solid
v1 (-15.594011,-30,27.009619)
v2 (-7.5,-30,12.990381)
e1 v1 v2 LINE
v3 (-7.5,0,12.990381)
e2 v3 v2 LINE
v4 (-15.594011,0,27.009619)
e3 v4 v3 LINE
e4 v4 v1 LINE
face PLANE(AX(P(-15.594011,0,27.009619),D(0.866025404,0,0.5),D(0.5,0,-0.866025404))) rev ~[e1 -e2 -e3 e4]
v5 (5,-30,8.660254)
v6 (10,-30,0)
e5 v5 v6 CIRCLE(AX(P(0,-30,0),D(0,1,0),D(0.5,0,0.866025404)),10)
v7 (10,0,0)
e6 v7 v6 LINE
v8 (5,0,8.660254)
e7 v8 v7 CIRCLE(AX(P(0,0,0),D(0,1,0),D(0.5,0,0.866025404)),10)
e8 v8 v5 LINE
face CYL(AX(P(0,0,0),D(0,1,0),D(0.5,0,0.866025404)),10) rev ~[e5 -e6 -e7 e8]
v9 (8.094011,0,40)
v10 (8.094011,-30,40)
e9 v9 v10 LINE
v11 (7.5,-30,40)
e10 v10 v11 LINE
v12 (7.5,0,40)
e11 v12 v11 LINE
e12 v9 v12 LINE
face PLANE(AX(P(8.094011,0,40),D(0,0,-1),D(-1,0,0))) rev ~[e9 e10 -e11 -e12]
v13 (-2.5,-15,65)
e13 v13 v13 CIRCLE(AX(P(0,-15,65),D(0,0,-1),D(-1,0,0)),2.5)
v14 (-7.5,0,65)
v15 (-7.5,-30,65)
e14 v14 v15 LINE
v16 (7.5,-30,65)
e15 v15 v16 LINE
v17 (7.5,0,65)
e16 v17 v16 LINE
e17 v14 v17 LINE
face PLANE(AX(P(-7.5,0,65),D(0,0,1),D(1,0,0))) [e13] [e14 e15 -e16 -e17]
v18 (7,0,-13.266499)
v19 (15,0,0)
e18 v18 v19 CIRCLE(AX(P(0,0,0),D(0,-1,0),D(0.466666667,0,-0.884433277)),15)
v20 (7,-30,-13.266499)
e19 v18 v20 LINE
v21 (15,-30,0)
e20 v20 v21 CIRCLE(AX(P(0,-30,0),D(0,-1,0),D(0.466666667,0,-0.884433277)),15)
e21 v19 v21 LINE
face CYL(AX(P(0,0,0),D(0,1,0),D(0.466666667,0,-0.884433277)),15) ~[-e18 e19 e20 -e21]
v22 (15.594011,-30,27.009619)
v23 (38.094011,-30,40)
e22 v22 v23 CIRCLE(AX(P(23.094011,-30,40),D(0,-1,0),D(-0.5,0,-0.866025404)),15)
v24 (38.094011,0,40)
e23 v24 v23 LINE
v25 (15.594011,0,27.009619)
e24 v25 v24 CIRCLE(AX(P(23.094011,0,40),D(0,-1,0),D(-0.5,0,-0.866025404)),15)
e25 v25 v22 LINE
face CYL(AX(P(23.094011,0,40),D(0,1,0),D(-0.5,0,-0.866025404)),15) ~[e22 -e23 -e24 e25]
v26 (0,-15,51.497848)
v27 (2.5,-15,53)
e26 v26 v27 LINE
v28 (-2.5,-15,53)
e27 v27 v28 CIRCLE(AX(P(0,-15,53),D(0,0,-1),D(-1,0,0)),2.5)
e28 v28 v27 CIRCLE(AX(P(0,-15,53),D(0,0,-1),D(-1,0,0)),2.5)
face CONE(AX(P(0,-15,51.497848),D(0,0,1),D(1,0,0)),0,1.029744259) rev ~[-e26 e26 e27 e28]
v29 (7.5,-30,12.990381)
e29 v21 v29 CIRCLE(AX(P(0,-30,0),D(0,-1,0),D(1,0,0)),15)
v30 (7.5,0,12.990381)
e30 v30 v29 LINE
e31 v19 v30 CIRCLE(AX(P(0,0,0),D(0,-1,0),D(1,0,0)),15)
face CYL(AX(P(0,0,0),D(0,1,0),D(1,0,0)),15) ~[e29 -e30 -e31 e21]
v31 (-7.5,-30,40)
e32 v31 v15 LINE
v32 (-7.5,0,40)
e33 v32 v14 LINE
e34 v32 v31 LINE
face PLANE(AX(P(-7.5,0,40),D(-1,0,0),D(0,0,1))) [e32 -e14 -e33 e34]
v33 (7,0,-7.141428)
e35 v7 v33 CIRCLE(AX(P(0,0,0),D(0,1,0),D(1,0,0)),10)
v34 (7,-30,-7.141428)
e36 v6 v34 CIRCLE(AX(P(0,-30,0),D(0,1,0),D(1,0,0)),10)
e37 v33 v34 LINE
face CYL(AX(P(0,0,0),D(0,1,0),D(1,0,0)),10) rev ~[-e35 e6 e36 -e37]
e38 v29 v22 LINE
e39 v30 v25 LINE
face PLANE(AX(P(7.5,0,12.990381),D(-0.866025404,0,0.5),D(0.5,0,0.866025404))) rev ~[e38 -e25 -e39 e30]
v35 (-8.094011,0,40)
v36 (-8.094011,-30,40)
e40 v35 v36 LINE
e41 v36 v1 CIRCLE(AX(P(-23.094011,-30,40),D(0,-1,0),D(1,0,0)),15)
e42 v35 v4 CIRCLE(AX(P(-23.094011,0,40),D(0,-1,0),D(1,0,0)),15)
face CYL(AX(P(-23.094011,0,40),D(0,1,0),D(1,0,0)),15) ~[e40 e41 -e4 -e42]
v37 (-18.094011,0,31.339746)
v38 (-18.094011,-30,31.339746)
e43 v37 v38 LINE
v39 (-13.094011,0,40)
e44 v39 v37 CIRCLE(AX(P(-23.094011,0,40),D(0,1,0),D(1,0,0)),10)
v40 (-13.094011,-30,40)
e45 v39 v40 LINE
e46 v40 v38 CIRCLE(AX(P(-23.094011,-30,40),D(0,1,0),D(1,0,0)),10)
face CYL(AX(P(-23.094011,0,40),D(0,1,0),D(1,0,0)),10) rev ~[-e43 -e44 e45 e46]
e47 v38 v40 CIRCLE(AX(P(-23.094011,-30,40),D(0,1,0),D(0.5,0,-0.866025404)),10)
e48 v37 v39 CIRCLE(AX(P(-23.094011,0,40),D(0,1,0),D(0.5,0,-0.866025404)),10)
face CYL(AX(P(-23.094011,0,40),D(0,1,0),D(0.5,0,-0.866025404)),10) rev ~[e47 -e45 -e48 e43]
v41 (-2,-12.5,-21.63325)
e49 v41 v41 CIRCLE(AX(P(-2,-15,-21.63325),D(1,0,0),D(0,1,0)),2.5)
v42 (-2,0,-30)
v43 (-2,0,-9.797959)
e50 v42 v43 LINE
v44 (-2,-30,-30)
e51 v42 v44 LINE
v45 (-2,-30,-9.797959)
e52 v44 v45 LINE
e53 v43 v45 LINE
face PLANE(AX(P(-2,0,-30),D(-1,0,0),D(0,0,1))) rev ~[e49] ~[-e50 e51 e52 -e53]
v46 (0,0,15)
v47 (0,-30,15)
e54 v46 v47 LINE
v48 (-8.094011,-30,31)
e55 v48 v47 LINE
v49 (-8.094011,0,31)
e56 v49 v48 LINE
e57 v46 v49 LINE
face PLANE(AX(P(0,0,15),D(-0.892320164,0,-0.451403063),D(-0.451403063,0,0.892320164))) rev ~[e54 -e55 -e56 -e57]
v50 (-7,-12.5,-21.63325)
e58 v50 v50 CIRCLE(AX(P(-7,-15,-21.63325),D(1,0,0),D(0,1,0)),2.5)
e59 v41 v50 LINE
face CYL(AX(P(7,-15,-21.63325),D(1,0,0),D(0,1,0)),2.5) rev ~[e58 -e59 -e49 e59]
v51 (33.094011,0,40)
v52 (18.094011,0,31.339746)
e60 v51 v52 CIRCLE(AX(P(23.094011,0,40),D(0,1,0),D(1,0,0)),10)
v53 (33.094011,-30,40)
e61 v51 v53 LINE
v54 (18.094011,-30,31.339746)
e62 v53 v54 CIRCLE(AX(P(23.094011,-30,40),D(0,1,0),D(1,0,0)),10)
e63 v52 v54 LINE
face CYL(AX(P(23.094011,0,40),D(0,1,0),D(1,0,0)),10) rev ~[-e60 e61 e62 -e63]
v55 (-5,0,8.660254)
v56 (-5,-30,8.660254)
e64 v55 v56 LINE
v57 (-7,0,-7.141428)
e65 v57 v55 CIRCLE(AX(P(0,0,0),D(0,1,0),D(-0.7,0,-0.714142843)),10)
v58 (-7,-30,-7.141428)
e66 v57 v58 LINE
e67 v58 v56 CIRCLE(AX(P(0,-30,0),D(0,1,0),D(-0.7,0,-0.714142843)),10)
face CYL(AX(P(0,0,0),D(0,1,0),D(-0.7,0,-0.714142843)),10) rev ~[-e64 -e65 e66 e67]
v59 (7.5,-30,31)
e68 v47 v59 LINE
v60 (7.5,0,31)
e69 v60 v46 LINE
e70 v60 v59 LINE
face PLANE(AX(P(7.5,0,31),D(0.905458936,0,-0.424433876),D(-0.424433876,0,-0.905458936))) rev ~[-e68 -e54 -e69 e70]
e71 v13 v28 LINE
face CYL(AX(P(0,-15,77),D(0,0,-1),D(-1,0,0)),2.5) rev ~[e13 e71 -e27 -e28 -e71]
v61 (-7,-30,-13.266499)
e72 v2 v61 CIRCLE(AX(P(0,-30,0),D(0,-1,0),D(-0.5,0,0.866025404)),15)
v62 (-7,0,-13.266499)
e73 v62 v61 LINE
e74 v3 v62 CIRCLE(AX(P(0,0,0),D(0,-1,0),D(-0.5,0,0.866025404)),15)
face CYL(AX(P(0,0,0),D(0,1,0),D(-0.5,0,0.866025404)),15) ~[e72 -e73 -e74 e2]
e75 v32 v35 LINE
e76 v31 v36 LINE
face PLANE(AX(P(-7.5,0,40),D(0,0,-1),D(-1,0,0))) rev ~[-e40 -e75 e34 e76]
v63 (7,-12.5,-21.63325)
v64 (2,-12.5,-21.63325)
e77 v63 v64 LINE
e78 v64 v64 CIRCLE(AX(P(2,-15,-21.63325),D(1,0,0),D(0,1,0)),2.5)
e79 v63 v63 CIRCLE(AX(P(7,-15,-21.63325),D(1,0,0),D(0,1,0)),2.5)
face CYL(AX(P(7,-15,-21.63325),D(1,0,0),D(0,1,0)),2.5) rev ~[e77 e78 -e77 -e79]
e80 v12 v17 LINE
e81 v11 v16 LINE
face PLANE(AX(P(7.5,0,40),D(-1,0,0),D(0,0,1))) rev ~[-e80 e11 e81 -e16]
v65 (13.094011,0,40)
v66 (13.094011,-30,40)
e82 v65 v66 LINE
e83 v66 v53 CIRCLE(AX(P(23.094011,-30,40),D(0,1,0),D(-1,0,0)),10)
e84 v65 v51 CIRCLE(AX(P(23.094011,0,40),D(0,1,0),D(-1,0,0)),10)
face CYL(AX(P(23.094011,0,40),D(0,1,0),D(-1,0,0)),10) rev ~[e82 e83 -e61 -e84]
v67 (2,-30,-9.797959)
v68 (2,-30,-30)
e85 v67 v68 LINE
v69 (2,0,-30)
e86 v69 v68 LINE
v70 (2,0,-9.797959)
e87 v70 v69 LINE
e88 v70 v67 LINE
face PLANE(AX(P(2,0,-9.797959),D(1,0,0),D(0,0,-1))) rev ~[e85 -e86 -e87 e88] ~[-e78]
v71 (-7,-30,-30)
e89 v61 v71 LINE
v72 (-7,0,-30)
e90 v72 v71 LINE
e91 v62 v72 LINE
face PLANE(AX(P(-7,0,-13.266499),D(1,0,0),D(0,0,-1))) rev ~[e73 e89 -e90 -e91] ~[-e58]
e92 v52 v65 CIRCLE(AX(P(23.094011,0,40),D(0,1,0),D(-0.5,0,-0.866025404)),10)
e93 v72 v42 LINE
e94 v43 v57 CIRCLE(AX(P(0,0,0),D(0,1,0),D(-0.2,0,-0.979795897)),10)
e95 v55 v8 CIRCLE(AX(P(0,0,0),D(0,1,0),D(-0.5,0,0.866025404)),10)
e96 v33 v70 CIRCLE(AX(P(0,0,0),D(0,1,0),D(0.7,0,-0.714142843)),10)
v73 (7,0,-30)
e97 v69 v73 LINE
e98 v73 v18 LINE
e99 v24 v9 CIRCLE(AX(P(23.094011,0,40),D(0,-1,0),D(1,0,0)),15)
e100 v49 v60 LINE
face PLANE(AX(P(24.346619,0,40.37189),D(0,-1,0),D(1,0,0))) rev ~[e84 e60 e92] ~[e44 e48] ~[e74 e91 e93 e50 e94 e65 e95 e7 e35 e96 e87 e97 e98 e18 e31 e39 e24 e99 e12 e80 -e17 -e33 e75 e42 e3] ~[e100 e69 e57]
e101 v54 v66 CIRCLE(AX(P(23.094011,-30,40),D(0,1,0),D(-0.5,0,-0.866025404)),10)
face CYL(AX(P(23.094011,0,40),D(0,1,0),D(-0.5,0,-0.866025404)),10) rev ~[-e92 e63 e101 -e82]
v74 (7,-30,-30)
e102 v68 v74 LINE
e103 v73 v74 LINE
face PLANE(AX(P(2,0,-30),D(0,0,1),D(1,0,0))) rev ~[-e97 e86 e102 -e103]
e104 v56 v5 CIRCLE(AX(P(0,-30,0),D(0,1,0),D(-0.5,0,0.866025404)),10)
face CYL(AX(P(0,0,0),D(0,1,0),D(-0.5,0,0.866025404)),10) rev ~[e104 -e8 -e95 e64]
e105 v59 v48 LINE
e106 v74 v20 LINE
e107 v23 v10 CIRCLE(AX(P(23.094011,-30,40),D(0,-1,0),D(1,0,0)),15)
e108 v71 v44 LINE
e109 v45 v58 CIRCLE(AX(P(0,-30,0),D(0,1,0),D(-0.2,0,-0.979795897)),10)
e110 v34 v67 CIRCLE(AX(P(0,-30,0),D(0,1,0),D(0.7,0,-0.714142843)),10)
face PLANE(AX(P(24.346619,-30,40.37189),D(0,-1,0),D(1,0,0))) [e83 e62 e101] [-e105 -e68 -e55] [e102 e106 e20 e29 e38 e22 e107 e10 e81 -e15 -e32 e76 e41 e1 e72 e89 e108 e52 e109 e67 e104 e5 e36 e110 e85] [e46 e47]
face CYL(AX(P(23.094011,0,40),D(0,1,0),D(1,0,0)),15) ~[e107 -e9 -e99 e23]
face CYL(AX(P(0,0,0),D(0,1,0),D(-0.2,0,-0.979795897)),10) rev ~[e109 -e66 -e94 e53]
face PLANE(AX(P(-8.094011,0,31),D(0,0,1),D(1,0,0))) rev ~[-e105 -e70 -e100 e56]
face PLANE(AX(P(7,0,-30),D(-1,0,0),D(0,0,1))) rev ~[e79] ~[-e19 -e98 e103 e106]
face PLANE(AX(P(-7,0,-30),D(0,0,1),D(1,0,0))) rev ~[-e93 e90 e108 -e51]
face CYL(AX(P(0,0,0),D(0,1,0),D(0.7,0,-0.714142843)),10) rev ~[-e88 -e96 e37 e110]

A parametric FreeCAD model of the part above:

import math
import FreeCAD as App
import Part
import Sketcher
from FreeCAD import Vector
Q = App.Units.Quantity


def add_polygon(sketch, points):
    """Adds a closed chain of lines whose ends are joined by coincident constraints."""
    first, n = sketch.GeometryCount, len(points)
    for a, b in zip(points, points[1:] + points[:1]):
        sketch.addGeometry(Part.LineSegment(App.Vector(*a, 0), App.Vector(*b, 0)), False)
    for i in range(n):
        sketch.addConstraint(Sketcher.Constraint("Coincident", first + i, 2, first + (i + 1) % n, 1))

doc = App.newDocument("Part")
body = doc.addObject("PartDesign::Body", "Body")

# Sketch on XZ plane
sketch1 = doc.addObject("Sketcher::SketchObject", "Sketch")
body.addObject(sketch1)
sketch1.AttachmentSupport = (doc.XZ_Plane, [""])
sketch1.MapMode = "FlatFace"
sketch1.addGeometry(Part.ArcOfCircle(Part.Circle(Vector(23.1, 40, 0), Vector(0, 0, 1), 15), math.radians(-120), math.radians(0)), False)
sketch1.addGeometry(Part.ArcOfCircle(Part.Circle(Vector(23.1, 40, 0), Vector(0, 0, 1), 15), math.radians(0), math.radians(180)), False)
sketch1.addGeometry(Part.LineSegment(Vector(8.1, 40, 0), Vector(7.5, 40, 0)), False)
sketch1.addGeometry(Part.LineSegment(Vector(7.5, 40, 0), Vector(7.5, 65, 0)), False)
sketch1.addGeometry(Part.LineSegment(Vector(7.5, 65, 0), Vector(-7.5, 65, 0)), False)
sketch1.addGeometry(Part.LineSegment(Vector(-7.5, 65, 0), Vector(-7.5, 40, 0)), False)
sketch1.addGeometry(Part.LineSegment(Vector(-7.5, 40, 0), Vector(-8.1, 40, 0)), False)
sketch1.addGeometry(Part.ArcOfCircle(Part.Circle(Vector(-23.1, 40, 0), Vector(0, 0, 1), 15), math.radians(0), math.radians(300)), False)
sketch1.addGeometry(Part.LineSegment(Vector(-15.6, 27, 0), Vector(-7.5, 13, 0)), False)
sketch1.addGeometry(Part.ArcOfCircle(Part.Circle(Vector(0, 0, 0), Vector(0, 0, 1), 15), math.radians(120), math.radians(242)), False)
sketch1.addGeometry(Part.LineSegment(Vector(-7, -13.3, 0), Vector(-7, -30, 0)), False)
sketch1.addGeometry(Part.LineSegment(Vector(-7, -30, 0), Vector(-2, -30, 0)), False)
sketch1.addGeometry(Part.LineSegment(Vector(-2, -30, 0), Vector(-2, -9.8, 0)), False)
sketch1.addGeometry(Part.ArcOfCircle(Part.Circle(Vector(0, 0, 0), Vector(0, 0, 1), 10), math.radians(-134), math.radians(-102)), False)
sketch1.addGeometry(Part.ArcOfCircle(Part.Circle(Vector(0, 0, 0), Vector(0, 0, 1), 10), math.radians(120), math.radians(226)), False)
sketch1.addGeometry(Part.ArcOfCircle(Part.Circle(Vector(0, 0, 0), Vector(0, 0, 1), 10), math.radians(60), math.radians(120)), False)
sketch1.addGeometry(Part.ArcOfCircle(Part.Circle(Vector(0, 0, 0), Vector(0, 0, 1), 10), math.radians(0), math.radians(60)), False)
sketch1.addGeometry(Part.ArcOfCircle(Part.Circle(Vector(0, 0, 0), Vector(0, 0, 1), 10), math.radians(-46), math.radians(0)), False)
sketch1.addGeometry(Part.ArcOfCircle(Part.Circle(Vector(0, 0, 0), Vector(0, 0, 1), 10), math.radians(-78), math.radians(-46)), False)
sketch1.addGeometry(Part.LineSegment(Vector(2, -9.8, 0), Vector(2, -30, 0)), False)
sketch1.addGeometry(Part.LineSegment(Vector(2, -30, 0), Vector(7, -30, 0)), False)
sketch1.addGeometry(Part.LineSegment(Vector(7, -30, 0), Vector(7, -13.3, 0)), False)
sketch1.addGeometry(Part.ArcOfCircle(Part.Circle(Vector(0, 0, 0), Vector(0, 0, 1), 15), math.radians(-62), math.radians(0)), False)
sketch1.addGeometry(Part.ArcOfCircle(Part.Circle(Vector(0, 0, 0), Vector(0, 0, 1), 15), math.radians(0), math.radians(60)), False)
sketch1.addGeometry(Part.LineSegment(Vector(7.5, 13, 0), Vector(15.6, 27, 0)), False)
sketch1.addGeometry(Part.ArcOfCircle(Part.Circle(Vector(23.1, 40, 0), Vector(0, 0, 1), 10), math.radians(0), math.radians(180)), False)
sketch1.addGeometry(Part.ArcOfCircle(Part.Circle(Vector(23.1, 40, 0), Vector(0, 0, 1), 10), math.radians(-120), math.radians(0)), False)
sketch1.addGeometry(Part.ArcOfCircle(Part.Circle(Vector(23.1, 40, 0), Vector(0, 0, 1), 10), math.radians(180), math.radians(240)), False)
sketch1.addGeometry(Part.ArcOfCircle(Part.Circle(Vector(-23.1, 40, 0), Vector(0, 0, 1), 10), math.radians(-60), math.radians(0)), False)
sketch1.addGeometry(Part.ArcOfCircle(Part.Circle(Vector(-23.1, 40, 0), Vector(0, 0, 1), 10), math.radians(0), math.radians(300)), False)
sketch1.addConstraint(Sketcher.Constraint("Tangent", 0, 2, 1, 1))
sketch1.addConstraint(Sketcher.Constraint("Coincident", 1, 2, 2, 1))
sketch1.addConstraint(Sketcher.Constraint("Coincident", 2, 2, 3, 1))
sketch1.addConstraint(Sketcher.Constraint("Coincident", 3, 2, 4, 1))
sketch1.addConstraint(Sketcher.Constraint("Coincident", 4, 2, 5, 1))
sketch1.addConstraint(Sketcher.Constraint("Coincident", 5, 2, 6, 1))
sketch1.addConstraint(Sketcher.Constraint("Coincident", 6, 2, 7, 1))
sketch1.addConstraint(Sketcher.Constraint("Coincident", 7, 2, 8, 1))
sketch1.addConstraint(Sketcher.Constraint("Coincident", 8, 2, 9, 1))
sketch1.addConstraint(Sketcher.Constraint("Coincident", 9, 2, 10, 1))
sketch1.addConstraint(Sketcher.Constraint("Coincident", 10, 2, 11, 1))
sketch1.addConstraint(Sketcher.Constraint("Coincident", 11, 2, 12, 1))
sketch1.addConstraint(Sketcher.Constraint("Coincident", 12, 2, 13, 2))
sketch1.addConstraint(Sketcher.Constraint("Tangent", 13, 1, 14, 2))
sketch1.addConstraint(Sketcher.Constraint("Tangent", 14, 1, 15, 2))
sketch1.addConstraint(Sketcher.Constraint("Tangent", 15, 1, 16, 2))
sketch1.addConstraint(Sketcher.Constraint("Tangent", 16, 1, 17, 2))
sketch1.addConstraint(Sketcher.Constraint("Tangent", 17, 1, 18, 2))
sketch1.addConstraint(Sketcher.Constraint("Coincident", 18, 1, 19, 1))
sketch1.addConstraint(Sketcher.Constraint("Coincident", 19, 2, 20, 1))
sketch1.addConstraint(Sketcher.Constraint("Coincident", 20, 2, 21, 1))
sketch1.addConstraint(Sketcher.Constraint("Coincident", 21, 2, 22, 1))
sketch1.addConstraint(Sketcher.Constraint("Tangent", 22, 2, 23, 1))
sketch1.addConstraint(Sketcher.Constraint("Coincident", 23, 2, 24, 1))
sketch1.addConstraint(Sketcher.Constraint("Coincident", 24, 2, 0, 1))
sketch1.addConstraint(Sketcher.Constraint("Tangent", 25, 1, 26, 2))
sketch1.addConstraint(Sketcher.Constraint("Tangent", 26, 1, 27, 2))
sketch1.addConstraint(Sketcher.Constraint("Tangent", 27, 1, 25, 2))
sketch1.addConstraint(Sketcher.Constraint("Tangent", 28, 1, 29, 2))
sketch1.addConstraint(Sketcher.Constraint("Coincident", 29, 1, 28, 2))
sketch1.addConstraint(Sketcher.Constraint("Horizontal", 2))
sketch1.addConstraint(Sketcher.Constraint("Vertical", 3))
sketch1.addConstraint(Sketcher.Constraint("Horizontal", 4))
sketch1.addConstraint(Sketcher.Constraint("Vertical", 5))
sketch1.addConstraint(Sketcher.Constraint("Horizontal", 6))
sketch1.addConstraint(Sketcher.Constraint("Vertical", 10))
sketch1.addConstraint(Sketcher.Constraint("Horizontal", 11))
sketch1.addConstraint(Sketcher.Constraint("Vertical", 12))
sketch1.addConstraint(Sketcher.Constraint("Vertical", 19))
sketch1.addConstraint(Sketcher.Constraint("Horizontal", 20))
sketch1.addConstraint(Sketcher.Constraint("Vertical", 21))
sketch1.addConstraint(Sketcher.Constraint("Coincident", 9, 3, -1, 1))
sketch1.addConstraint(Sketcher.Constraint("Coincident", 13, 3, -1, 1))
sketch1.addConstraint(Sketcher.Constraint("Coincident", 15, 3, -1, 1))
sketch1.addConstraint(Sketcher.Constraint("Coincident", 17, 3, -1, 1))
sketch1.addConstraint(Sketcher.Constraint("Coincident", 22, 3, -1, 1))
sketch1.addConstraint(Sketcher.Constraint("Coincident", 25, 3, 0, 3))
sketch1.addConstraint(Sketcher.Constraint("Coincident", 28, 3, 7, 3))
sketch1.addConstraint(Sketcher.Constraint("Equal", 0, 1))
sketch1.addConstraint(Sketcher.Constraint("Equal", 1, 7))
sketch1.addConstraint(Sketcher.Constraint("Equal", 7, 9))
sketch1.addConstraint(Sketcher.Constraint("Equal", 17, 18))
sketch1.addConstraint(Sketcher.Constraint("Equal", 9, 22))
sketch1.addConstraint(Sketcher.Constraint("Equal", 22, 23))
sketch1.addConstraint(Sketcher.Constraint("Equal", 18, 25))
sketch1.addConstraint(Sketcher.Constraint("Equal", 27, 28))
sketch1.addConstraint(Sketcher.Constraint("Symmetric", 0, 3, 7, 3, -2))
sketch1.addConstraint(Sketcher.Constraint("Symmetric", 2, 2, 5, 2, -2))
sketch1.addConstraint(Sketcher.Constraint("Symmetric", 11, 2, 19, 2, -2))
sketch1.addConstraint(Sketcher.Constraint("PointOnObject", 16, 1, -1))
sketch1.addConstraint(Sketcher.Constraint("PointOnObject", 22, 2, -1))
sketch1.addConstraint(Sketcher.Constraint("Horizontal", 29, 3, 0, 2))
sketch1.addConstraint(Sketcher.Constraint("Horizontal", 0, 2, 1, 2))
sketch1.addConstraint(Sketcher.Constraint("Horizontal", 14, 1, 15, 1))
sketch1.addConstraint(Sketcher.Constraint("Horizontal", 13, 1, 17, 1))
sketch1.addConstraint(Sketcher.Constraint("Horizontal", 9, 2, 21, 2))
sketch1.addConstraint(Sketcher.Constraint("Horizontal", 8, 2, 23, 2))
sketch1.addConstraint(Sketcher.Constraint("Horizontal", 7, 2, 24, 2))
sketch1.addConstraint(Sketcher.Constraint("Horizontal", 6, 2, 25, 1))
sketch1.addConstraint(Sketcher.Constraint("Horizontal", 25, 1, 27, 1))
sketch1.addConstraint(Sketcher.Constraint("Horizontal", 26, 1, 28, 1))
sketch1.addConstraint(Sketcher.Constraint("Horizontal", 27, 1, 29, 1))
sketch1.addConstraint(Sketcher.Constraint("Vertical", 5, 2, 8, 2))
sketch1.addConstraint(Sketcher.Constraint("Vertical", 10, 2, 13, 1))
sketch1.addConstraint(Sketcher.Constraint("Radius", 0, 15.0))
sketch1.addConstraint(Sketcher.Constraint("Radius", 13, 10.0))
sketch1.addConstraint(Sketcher.Constraint("DistanceX", 4, 2, 4, 1, 15.0))
sketch1.addConstraint(Sketcher.Constraint("DistanceX", 11, 1, 11, 2, 5.0))
sketch1.addConstraint(Sketcher.Constraint("DistanceY", 3, 1, 3, 2, 25.0))
sketch1.addConstraint(Sketcher.Constraint("Angle", 8, Q("-60 deg")))
sketch1.addConstraint(Sketcher.Constraint("DistanceY", -1, 1, 0, 3, 40.0))
sketch1.addConstraint(Sketcher.Constraint("DistanceX", 9, 2, -1, 1, 7.0))
sketch1.addConstraint(Sketcher.Constraint("DistanceY", 10, 2, -1, 1, 30.0))
sketch1.addConstraint(Sketcher.Constraint("DistanceX", 14, 1, -1, 1, 5.0))
sketch1.addConstraint(Sketcher.Constraint("DistanceX", 26, 1, 27, 3, 5.0))
sketch1.addConstraint(Sketcher.Constraint("DistanceX", 28, 3, 7, 2, 7.5))
pad1 = doc.addObject("PartDesign::Pad", "Pad")
body.addObject(pad1)
pad1.Profile = sketch1
pad1.Length = 30

# Sketch on XY plane
sketch2 = doc.addObject("Sketcher::SketchObject", "Sketch001")
body.addObject(sketch2)
sketch2.AttachmentSupport = (doc.XY_Plane, [""])
sketch2.MapMode = "FlatFace"
sketch2.AttachmentOffset = App.Placement(Vector(0, 0, 65), App.Rotation())
sketch2.addGeometry(Part.Circle(Vector(0, -15, 0), Vector(0, 0, 1), 2.5), False)
sketch2.addConstraint(Sketcher.Constraint("PointOnObject", 0, 3, -2))
sketch2.addConstraint(Sketcher.Constraint("Diameter", 0, 5.0))
sketch2.addConstraint(Sketcher.Constraint("DistanceY", 0, 3, -1, 1, 15.0))
doc.recompute()
hole = doc.addObject("PartDesign::Hole", "Hole")
body.addObject(hole)
hole.Profile = sketch2
hole.ThreadType = "None"
hole.Diameter = 5
hole.DepthType = "Dimension"
hole.Depth = 12
hole.DrillPoint = "Angled"
hole.DrillPointAngle = 118

# Sketch on YZ plane
sketch3 = doc.addObject("Sketcher::SketchObject", "Sketch002")
body.addObject(sketch3)
sketch3.AttachmentSupport = (doc.YZ_Plane, [""])
sketch3.MapMode = "FlatFace"
sketch3.AttachmentOffset = App.Placement(Vector(0, 0, 7), App.Rotation())
sketch3.addGeometry(Part.Circle(Vector(-15, -21.6, 0), Vector(0, 0, 1), 2.5), False)
sketch3.addConstraint(Sketcher.Constraint("Diameter", 0, 5.0))
sketch3.addConstraint(Sketcher.Constraint("DistanceX", 0, 3, -1, 1, 15.0))
sketch3.addConstraint(Sketcher.Constraint("DistanceY", 0, 3, -1, 1, 21.63325))
pocket1 = doc.addObject("PartDesign::Pocket", "Pocket")
body.addObject(pocket1)
pocket1.Profile = sketch3
pocket1.Length = 25

# Sketch on XZ plane
sketch4 = doc.addObject("Sketcher::SketchObject", "Sketch003")
body.addObject(sketch4)
sketch4.AttachmentSupport = (doc.XZ_Plane, [""])
sketch4.MapMode = "FlatFace"
add_polygon(sketch4, [(8, 31), (0, 15), (-8, 31)])  # lines 0-2
sketch4.addConstraint(Sketcher.Constraint("Horizontal", 2))
sketch4.addConstraint(Sketcher.Constraint("PointOnObject", 0, 2, -2))
sketch4.addConstraint(Sketcher.Constraint("DistanceY", -1, 1, 0, 2, 15.0))
sketch4.addConstraint(Sketcher.Constraint("DistanceY", -1, 1, 1, 2, 31.0))
sketch4.addConstraint(Sketcher.Constraint("DistanceX", -1, 1, 2, 2, 7.5))
sketch4.addConstraint(Sketcher.Constraint("DistanceX", 2, 1, 2, 2, 15.594011))
pocket2 = doc.addObject("PartDesign::Pocket", "Pocket001")
body.addObject(pocket2)
pocket2.Profile = sketch4
pocket2.Length = 40
pocket2.Reversed = True

doc.recompute()
